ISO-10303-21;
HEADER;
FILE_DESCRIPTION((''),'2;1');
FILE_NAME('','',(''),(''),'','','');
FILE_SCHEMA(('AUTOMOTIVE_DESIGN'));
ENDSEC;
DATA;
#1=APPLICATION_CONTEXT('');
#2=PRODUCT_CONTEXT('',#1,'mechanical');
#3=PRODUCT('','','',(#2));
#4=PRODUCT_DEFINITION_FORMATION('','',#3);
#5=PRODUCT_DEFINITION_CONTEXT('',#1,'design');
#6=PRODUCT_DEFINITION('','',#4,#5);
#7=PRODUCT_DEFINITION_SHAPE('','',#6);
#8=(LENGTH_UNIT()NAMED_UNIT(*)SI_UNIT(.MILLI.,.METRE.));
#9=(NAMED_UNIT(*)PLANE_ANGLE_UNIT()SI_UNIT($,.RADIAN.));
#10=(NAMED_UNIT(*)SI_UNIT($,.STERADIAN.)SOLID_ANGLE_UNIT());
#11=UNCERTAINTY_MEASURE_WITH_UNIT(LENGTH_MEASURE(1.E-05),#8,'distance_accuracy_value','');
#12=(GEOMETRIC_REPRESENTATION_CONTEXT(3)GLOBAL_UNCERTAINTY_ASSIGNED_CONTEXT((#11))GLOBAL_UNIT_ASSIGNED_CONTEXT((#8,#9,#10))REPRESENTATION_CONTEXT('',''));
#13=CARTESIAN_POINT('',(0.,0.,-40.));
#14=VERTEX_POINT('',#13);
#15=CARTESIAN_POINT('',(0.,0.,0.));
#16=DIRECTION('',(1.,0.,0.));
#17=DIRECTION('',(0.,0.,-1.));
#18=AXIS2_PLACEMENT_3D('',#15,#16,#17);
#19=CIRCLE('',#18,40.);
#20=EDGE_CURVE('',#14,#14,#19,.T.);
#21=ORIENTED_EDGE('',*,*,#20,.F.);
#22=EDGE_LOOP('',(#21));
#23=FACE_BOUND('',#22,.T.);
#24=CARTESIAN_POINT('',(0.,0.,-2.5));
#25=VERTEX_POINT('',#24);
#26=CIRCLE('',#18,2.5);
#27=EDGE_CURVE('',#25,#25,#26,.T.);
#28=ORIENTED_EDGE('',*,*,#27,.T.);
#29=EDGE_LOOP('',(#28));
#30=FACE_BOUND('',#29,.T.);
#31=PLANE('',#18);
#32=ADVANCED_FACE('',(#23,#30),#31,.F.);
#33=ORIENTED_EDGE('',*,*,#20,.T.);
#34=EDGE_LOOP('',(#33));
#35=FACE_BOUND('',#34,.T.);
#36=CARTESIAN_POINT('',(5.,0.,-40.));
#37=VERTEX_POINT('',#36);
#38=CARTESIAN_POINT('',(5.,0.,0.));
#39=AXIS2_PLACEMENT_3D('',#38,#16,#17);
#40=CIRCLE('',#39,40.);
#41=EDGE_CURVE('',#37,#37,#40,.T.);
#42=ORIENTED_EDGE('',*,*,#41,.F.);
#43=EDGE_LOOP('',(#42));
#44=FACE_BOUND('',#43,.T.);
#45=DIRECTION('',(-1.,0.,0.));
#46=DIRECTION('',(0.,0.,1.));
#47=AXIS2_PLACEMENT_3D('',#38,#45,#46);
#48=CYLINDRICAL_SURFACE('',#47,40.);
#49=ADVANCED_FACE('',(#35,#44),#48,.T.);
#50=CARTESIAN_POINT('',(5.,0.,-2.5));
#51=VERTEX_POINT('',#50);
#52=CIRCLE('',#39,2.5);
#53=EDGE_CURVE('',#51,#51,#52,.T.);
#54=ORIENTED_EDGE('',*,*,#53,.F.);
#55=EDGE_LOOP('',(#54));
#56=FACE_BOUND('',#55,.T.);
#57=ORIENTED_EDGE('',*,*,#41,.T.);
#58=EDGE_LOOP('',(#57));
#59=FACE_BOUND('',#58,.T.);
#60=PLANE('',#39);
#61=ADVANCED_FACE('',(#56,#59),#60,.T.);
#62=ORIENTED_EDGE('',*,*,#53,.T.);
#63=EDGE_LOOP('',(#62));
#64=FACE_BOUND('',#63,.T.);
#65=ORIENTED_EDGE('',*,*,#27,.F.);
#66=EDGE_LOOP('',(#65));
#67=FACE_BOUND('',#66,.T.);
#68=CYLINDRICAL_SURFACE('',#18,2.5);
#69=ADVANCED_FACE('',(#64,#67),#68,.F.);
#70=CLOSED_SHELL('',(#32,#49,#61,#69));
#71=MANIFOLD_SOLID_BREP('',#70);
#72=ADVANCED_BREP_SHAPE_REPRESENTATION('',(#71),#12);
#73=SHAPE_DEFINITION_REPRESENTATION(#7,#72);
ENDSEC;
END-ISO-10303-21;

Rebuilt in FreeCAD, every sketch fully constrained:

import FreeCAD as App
import Part
import Sketcher

V = App.Vector

doc = App.newDocument("Part")
params = doc.addObject("Spreadsheet::Sheet", "Params")
for row, (alias, value) in enumerate([
    ("sketch1_diameter", "80 mm"),
    ("pad1_length", "5 mm"),
    ("sketch2_diameter", "5 mm"),
    ("pocket1_length", "5 mm"),
], start=1):
    params.set(f"A{row}", alias)
    params.set(f"B{row}", "=" + value)
    params.setAlias(f"B{row}", alias)

body = doc.addObject("PartDesign::Body", "Body")

# Sketch on YZ plane
sketch1 = doc.addObject("Sketcher::SketchObject", "Sketch")
body.addObject(sketch1)
sketch1.AttachmentSupport = (doc.YZ_Plane, [""])
sketch1.MapMode = "FlatFace"
sketch1.addGeometry(Part.Circle(V(0, 0, 0), V(0, 0, 1), 40), False)
sketch1.addConstraint([
    Sketcher.Constraint("Coincident", 0, 3, -1, 1),
    Sketcher.Constraint("Diameter", 0, 80.0),
])
sketch1.setExpression("Constraints[1]", "Params.sketch1_diameter")
pad1 = doc.addObject("PartDesign::Pad", "Pad")
body.addObject(pad1)
pad1.Profile = sketch1
pad1.setExpression("Length", "Params.pad1_length")

# Sketch on YZ plane
sketch2 = doc.addObject("Sketcher::SketchObject", "Sketch001")
body.addObject(sketch2)
sketch2.AttachmentSupport = (doc.YZ_Plane, [""])
sketch2.MapMode = "FlatFace"
sketch2.AttachmentOffset = App.Placement(V(0, 0, 5), App.Rotation())
sketch2.addGeometry(Part.Circle(V(0, 0, 0), V(0, 0, 1), 2.5), False)
sketch2.addConstraint([
    Sketcher.Constraint("Coincident", 0, 3, -1, 1),
    Sketcher.Constraint("Diameter", 0, 5.0),
])
sketch2.setExpression("Constraints[1]", "Params.sketch2_diameter")
pocket1 = doc.addObject("PartDesign::Pocket", "Pocket")
body.addObject(pocket1)
pocket1.Profile = sketch2
pocket1.setExpression("Length", "Params.pocket1_length")

doc.recompute()
